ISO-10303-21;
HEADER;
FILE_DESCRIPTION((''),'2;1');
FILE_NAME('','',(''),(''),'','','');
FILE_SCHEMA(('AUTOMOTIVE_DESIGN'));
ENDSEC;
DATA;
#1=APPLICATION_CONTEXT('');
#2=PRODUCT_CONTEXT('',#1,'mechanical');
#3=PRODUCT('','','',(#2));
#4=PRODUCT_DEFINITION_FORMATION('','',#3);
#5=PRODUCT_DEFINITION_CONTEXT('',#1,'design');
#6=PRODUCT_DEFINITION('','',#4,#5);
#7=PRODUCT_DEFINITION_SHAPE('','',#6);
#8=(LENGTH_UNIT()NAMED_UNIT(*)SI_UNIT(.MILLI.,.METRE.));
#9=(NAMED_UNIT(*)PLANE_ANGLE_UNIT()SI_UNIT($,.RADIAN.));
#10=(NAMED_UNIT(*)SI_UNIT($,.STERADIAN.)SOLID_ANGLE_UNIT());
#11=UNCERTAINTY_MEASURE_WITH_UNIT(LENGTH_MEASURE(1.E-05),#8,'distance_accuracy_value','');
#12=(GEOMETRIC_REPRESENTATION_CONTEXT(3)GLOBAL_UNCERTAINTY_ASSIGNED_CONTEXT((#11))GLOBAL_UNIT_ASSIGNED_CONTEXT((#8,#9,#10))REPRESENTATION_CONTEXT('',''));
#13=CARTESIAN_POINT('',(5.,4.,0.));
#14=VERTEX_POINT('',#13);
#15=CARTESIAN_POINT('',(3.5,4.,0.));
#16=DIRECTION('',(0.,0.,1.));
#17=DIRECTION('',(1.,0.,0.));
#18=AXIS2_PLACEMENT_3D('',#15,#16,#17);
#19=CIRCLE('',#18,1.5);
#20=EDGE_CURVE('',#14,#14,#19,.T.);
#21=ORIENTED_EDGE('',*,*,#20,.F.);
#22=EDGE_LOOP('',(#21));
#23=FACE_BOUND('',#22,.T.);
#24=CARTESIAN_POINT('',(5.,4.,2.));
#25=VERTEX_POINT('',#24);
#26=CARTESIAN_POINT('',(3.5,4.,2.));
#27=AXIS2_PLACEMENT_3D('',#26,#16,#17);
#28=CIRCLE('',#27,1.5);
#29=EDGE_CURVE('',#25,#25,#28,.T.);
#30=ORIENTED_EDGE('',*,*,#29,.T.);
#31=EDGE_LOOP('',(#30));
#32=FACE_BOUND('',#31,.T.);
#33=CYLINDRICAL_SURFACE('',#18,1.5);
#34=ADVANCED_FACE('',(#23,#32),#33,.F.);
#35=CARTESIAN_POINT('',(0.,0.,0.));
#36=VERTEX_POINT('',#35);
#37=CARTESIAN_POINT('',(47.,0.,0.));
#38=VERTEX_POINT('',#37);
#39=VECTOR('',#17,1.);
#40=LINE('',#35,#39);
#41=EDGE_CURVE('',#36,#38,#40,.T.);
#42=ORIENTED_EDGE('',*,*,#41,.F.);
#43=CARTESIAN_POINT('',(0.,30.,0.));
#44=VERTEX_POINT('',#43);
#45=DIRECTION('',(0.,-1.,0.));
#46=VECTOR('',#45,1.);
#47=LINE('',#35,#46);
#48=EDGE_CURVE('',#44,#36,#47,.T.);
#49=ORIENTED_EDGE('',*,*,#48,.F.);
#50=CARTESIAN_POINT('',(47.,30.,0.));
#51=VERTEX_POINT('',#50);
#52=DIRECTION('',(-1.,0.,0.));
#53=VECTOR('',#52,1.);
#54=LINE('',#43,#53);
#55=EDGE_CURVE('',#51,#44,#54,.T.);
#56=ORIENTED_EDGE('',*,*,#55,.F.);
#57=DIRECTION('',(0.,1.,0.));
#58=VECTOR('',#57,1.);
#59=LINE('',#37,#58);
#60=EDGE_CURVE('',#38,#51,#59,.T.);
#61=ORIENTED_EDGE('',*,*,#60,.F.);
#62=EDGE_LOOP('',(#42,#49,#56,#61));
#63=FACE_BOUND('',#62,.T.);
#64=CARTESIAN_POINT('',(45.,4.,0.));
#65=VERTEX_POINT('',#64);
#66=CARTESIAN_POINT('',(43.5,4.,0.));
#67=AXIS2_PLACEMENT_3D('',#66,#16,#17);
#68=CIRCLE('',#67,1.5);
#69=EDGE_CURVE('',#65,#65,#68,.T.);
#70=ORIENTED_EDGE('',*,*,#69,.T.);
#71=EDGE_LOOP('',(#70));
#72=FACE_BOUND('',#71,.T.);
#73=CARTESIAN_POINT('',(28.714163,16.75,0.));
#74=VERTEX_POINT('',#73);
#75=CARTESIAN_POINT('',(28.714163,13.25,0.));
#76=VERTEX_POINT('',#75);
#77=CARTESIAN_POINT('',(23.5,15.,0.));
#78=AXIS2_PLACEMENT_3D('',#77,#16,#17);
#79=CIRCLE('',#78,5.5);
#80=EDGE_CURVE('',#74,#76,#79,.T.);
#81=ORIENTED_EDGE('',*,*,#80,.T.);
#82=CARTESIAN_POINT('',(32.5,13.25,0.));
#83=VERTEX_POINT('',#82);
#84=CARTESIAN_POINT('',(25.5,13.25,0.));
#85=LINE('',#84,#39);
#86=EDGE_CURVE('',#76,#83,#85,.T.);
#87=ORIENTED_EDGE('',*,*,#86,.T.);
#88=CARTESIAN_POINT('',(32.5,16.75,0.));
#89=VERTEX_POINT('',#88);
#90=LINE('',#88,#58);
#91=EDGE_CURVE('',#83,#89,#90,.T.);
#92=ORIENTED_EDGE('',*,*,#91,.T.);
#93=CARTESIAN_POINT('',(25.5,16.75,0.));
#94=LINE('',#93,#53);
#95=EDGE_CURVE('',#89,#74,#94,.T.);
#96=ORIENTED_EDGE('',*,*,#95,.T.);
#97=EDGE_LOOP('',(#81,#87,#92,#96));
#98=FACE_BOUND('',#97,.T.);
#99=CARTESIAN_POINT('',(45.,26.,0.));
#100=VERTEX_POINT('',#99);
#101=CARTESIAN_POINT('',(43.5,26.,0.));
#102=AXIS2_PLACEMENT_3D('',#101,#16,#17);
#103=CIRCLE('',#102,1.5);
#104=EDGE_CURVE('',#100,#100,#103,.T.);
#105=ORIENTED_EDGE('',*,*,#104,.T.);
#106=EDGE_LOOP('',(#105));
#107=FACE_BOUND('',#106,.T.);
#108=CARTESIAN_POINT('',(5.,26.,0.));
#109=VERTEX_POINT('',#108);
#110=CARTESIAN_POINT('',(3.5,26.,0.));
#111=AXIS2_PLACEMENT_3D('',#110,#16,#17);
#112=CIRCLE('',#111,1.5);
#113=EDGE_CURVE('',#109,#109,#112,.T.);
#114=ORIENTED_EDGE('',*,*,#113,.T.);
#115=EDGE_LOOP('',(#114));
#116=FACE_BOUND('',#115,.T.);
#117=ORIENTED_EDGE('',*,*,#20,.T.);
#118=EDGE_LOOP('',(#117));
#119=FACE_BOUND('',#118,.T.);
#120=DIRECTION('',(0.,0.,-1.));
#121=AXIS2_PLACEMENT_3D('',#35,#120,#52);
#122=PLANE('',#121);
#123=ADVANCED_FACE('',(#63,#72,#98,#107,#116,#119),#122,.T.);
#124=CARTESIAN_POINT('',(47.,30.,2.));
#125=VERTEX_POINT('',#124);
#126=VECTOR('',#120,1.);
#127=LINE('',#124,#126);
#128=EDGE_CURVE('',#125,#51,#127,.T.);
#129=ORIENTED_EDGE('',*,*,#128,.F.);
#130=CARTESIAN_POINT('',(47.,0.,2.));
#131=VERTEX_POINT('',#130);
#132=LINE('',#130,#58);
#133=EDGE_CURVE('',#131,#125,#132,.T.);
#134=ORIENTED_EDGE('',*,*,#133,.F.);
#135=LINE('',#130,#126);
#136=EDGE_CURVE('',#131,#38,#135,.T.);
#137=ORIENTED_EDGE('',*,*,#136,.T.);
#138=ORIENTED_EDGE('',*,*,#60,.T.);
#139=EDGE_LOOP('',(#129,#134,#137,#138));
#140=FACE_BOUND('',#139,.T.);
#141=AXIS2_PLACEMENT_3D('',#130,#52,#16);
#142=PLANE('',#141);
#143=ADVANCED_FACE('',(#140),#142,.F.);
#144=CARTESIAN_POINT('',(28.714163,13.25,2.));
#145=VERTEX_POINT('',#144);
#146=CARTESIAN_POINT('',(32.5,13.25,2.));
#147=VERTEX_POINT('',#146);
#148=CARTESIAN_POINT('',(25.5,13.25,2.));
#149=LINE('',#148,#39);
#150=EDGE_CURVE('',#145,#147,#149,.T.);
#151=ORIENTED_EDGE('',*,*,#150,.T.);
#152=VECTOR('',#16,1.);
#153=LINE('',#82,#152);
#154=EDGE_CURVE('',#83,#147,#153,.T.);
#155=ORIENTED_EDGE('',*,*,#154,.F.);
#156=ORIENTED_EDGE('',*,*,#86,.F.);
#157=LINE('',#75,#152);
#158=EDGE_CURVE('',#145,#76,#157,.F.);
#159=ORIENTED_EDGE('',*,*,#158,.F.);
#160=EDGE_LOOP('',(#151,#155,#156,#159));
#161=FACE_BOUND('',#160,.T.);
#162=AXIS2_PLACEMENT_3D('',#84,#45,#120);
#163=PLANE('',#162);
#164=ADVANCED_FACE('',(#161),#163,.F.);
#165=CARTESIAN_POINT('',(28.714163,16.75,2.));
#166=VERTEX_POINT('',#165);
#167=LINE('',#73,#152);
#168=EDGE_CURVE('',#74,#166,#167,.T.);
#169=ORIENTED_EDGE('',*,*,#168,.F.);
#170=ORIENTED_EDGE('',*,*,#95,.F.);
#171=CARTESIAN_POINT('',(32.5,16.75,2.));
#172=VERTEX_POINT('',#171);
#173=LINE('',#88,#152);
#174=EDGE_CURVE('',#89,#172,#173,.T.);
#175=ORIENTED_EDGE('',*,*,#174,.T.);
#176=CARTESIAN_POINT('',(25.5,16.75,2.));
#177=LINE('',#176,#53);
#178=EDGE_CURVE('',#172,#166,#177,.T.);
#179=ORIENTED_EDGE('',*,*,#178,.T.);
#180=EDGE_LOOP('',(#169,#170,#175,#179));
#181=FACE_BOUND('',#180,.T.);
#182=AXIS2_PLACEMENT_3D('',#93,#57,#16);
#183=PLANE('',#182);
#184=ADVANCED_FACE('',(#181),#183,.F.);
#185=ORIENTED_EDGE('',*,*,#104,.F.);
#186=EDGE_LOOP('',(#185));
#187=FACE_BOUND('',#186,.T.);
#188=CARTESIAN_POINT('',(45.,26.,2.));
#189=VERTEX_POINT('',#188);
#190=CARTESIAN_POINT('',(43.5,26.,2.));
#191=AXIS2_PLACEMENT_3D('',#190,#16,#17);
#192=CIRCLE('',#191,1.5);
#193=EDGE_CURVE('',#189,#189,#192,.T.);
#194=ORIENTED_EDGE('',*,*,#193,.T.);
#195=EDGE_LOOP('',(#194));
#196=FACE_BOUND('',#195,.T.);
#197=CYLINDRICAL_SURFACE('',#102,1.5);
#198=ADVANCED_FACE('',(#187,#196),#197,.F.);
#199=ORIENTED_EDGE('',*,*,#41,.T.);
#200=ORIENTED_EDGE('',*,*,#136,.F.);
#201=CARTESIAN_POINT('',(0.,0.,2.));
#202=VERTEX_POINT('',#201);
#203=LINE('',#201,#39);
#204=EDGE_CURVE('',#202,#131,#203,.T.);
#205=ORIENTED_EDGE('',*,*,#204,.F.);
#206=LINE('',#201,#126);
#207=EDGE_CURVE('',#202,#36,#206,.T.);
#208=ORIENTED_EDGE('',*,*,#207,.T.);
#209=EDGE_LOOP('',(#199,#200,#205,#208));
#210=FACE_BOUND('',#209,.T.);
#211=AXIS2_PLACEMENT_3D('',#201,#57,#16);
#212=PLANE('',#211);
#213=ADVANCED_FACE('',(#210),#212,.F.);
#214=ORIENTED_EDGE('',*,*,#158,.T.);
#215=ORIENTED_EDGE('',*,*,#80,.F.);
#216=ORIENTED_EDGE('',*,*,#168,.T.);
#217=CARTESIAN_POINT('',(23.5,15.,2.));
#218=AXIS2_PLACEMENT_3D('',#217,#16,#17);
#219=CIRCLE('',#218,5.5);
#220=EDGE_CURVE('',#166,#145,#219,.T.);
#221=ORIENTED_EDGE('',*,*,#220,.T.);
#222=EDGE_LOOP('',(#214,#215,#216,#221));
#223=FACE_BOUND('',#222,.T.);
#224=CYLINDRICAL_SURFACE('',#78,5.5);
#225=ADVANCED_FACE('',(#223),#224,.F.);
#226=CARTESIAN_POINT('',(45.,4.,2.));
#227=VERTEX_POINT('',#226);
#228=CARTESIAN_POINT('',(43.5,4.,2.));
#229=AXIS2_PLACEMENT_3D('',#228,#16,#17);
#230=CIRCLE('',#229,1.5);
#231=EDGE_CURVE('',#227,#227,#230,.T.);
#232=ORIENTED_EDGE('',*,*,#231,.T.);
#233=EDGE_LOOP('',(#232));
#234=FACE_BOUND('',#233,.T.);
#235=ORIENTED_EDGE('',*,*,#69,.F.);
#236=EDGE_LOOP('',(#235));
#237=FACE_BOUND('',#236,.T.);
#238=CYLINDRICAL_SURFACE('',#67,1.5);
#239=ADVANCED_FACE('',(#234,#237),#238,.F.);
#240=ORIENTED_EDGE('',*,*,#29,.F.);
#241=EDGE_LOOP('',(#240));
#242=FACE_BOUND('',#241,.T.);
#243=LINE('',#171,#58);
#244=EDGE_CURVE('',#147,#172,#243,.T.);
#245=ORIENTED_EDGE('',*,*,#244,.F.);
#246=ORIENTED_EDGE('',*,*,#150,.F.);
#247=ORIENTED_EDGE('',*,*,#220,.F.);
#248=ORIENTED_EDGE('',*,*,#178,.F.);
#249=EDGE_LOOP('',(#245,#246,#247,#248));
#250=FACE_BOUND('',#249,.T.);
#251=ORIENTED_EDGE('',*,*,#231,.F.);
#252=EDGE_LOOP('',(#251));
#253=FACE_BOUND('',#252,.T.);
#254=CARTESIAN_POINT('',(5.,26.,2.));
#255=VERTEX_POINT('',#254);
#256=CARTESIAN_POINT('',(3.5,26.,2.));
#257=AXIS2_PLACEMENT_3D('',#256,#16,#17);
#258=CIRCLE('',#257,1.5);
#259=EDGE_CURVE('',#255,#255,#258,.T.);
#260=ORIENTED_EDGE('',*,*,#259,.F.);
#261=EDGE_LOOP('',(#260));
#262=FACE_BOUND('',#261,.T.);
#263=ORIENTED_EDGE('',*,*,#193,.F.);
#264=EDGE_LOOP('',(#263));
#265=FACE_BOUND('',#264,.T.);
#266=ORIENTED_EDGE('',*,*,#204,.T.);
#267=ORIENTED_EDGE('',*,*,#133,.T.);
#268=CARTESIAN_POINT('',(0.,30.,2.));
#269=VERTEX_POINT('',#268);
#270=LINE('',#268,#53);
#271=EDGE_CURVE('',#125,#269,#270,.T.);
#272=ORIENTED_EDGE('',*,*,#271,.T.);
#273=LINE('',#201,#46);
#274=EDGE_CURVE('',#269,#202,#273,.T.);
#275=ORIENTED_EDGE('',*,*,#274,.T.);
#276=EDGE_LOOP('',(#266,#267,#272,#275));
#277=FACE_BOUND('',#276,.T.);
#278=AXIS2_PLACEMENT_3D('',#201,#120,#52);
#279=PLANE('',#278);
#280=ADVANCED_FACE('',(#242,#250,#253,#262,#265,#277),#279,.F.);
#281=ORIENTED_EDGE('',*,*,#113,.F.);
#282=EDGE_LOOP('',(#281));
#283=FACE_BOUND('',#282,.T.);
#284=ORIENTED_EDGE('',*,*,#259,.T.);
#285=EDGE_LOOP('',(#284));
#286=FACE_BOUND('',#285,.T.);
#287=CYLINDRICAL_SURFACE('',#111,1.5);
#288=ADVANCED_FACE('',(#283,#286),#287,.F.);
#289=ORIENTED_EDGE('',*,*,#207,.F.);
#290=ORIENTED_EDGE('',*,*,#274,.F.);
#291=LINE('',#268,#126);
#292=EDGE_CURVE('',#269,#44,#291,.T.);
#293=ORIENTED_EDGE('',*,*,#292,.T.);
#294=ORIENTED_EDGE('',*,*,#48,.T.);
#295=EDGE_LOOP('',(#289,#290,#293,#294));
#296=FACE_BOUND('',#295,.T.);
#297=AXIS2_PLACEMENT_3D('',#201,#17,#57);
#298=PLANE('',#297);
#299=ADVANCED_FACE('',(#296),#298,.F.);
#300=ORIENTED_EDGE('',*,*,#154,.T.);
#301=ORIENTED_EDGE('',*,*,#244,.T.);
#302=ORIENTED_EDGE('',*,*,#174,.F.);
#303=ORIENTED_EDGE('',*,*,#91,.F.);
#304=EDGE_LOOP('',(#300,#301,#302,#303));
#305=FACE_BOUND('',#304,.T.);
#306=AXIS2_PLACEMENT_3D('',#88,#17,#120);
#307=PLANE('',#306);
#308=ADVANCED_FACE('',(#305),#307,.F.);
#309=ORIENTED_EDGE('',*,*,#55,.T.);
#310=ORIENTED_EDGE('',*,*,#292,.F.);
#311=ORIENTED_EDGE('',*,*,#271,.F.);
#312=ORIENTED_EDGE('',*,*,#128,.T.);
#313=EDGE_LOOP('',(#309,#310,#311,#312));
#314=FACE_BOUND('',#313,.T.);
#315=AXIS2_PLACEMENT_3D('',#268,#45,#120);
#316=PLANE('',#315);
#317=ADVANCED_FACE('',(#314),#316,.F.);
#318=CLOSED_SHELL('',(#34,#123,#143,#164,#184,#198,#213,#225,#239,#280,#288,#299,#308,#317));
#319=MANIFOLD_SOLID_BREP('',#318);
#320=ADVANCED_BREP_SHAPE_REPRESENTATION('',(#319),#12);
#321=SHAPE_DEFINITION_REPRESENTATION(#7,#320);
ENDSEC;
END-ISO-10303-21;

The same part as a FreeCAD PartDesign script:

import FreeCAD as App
import Part
import Sketcher

V = App.Vector


def add_polygon(sketch, points):
    """Adds a closed chain of lines whose ends are joined by coincident constraints."""
    first, n = sketch.GeometryCount, len(points)
    for a, b in zip(points, points[1:] + points[:1]):
        sketch.addGeometry(Part.LineSegment(App.Vector(*a, 0), App.Vector(*b, 0)), False)
    for i in range(n):
        sketch.addConstraint(Sketcher.Constraint("Coincident", first + i, 2, first + (i + 1) % n, 1))

doc = App.newDocument("Part")
body = doc.addObject("PartDesign::Body", "Body")

# Sketch on XY plane
sketch1 = body.newObject("Sketcher::SketchObject", "Sketch")
sketch1.AttachmentSupport = (doc.getObject("XY_Plane"), [""])
sketch1.MapMode = "FlatFace"
add_polygon(sketch1, [(0, 30), (0, 0), (47, 0), (47, 30)])  # lines 0-3
sketch1.addConstraint([
    Sketcher.Constraint("Vertical", 0),
    Sketcher.Constraint("Horizontal", 1),
    Sketcher.Constraint("Vertical", 2),
    Sketcher.Constraint("Horizontal", 3),
    Sketcher.Constraint("Coincident", 0, 2, -1, 1),
    Sketcher.Constraint("DistanceX", 1, 1, 1, 2, 47.0),
    Sketcher.Constraint("DistanceY", 0, 2, 0, 1, 30.0),
])
pad1 = body.newObject("PartDesign::Pad", "Pad")
pad1.Profile = sketch1
pad1.Length = 2

# Sketch on XY plane
sketch2 = body.newObject("Sketcher::SketchObject", "Sketch001")
sketch2.AttachmentSupport = (doc.getObject("XY_Plane"), [""])
sketch2.MapMode = "FlatFace"
sketch2.AttachmentOffset = App.Placement(V(0, 0, 2), App.Rotation())
sketch2.addGeometry(Part.Circle(V(24, 15, 0), V(0, 0, 1), 6), False)
sketch2.addConstraint([
    Sketcher.Constraint("Diameter", 0, 11.0),
    Sketcher.Constraint("DistanceY", -1, 1, 0, 3, 15.0),
    Sketcher.Constraint("DistanceX", -1, 1, 0, 3, 23.5),
])
pocket1 = body.newObject("PartDesign::Pocket", "Pocket")
pocket1.Profile = sketch2
pocket1.Type = "ThroughAll"

# Sketch on XY plane
sketch3 = body.newObject("Sketcher::SketchObject", "Sketch002")
sketch3.AttachmentSupport = (doc.getObject("XY_Plane"), [""])
sketch3.MapMode = "FlatFace"
sketch3.AttachmentOffset = App.Placement(V(0, 0, 2), App.Rotation())
add_polygon(sketch3, [(25.5, 16.8), (25.5, 13.2), (32.5, 13.2), (32.5, 16.8)])  # lines 0-3
sketch3.addConstraint([
    Sketcher.Constraint("Vertical", 0),
    Sketcher.Constraint("Horizontal", 1),
    Sketcher.Constraint("Vertical", 2),
    Sketcher.Constraint("Horizontal", 3),
    Sketcher.Constraint("DistanceX", 1, 1, 1, 2, 7.0),
    Sketcher.Constraint("DistanceY", 0, 2, 0, 1, 3.5),
    Sketcher.Constraint("DistanceX", -1, 1, 0, 2, 25.5),
    Sketcher.Constraint("DistanceY", -1, 1, 0, 2, 13.25),
])
pocket2 = body.newObject("PartDesign::Pocket", "Pocket001")
pocket2.Profile = sketch3
pocket2.Type = "ThroughAll"

# Sketch on XY plane
sketch4 = body.newObject("Sketcher::SketchObject", "Sketch003")
sketch4.AttachmentSupport = (doc.getObject("XY_Plane"), [""])
sketch4.MapMode = "FlatFace"
sketch4.AttachmentOffset = App.Placement(V(0, 0, 2), App.Rotation())
sketch4.addGeometry([
    Part.Circle(V(3.5, 4, 0), V(0, 0, 1), 1.5),
    Part.Circle(V(43.5, 4, 0), V(0, 0, 1), 1.5),
    Part.Circle(V(43.5, 26, 0), V(0, 0, 1), 1.5),
    Part.Circle(V(3.5, 26, 0), V(0, 0, 1), 1.5),
], False)
sketch4.addConstraint([
    Sketcher.Constraint("Equal", 0, 1),
    Sketcher.Constraint("Equal", 1, 2),
    Sketcher.Constraint("Equal", 2, 3),
    Sketcher.Constraint("Horizontal", 0, 3, 1, 3),
    Sketcher.Constraint("Horizontal", 2, 3, 3, 3),
    Sketcher.Constraint("Vertical", 1, 3, 2, 3),
    Sketcher.Constraint("Vertical", 0, 3, 3, 3),
    Sketcher.Constraint("Diameter", 0, 3.0),
    Sketcher.Constraint("DistanceY", -1, 1, 0, 3, 4.0),
    Sketcher.Constraint("DistanceY", -1, 1, 2, 3, 26.0),
    Sketcher.Constraint("DistanceX", 0, 3, 1, 3, 40.0),
    Sketcher.Constraint("DistanceX", -1, 1, 0, 3, 3.5),
])
pocket3 = body.newObject("PartDesign::Pocket", "Pocket002")
pocket3.Profile = sketch4
pocket3.Type = "ThroughAll"

doc.recompute()
